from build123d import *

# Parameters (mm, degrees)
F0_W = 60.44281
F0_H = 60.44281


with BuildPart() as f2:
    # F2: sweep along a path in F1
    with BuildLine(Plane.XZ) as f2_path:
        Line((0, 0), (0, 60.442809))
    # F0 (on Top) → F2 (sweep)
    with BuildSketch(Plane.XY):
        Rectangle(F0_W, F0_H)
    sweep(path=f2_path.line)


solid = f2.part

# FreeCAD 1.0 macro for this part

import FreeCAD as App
import Part
import Sketcher

V = App.Vector


def add_polygon(sketch, points):
    """Adds a closed chain of lines whose ends are joined by coincident constraints."""
    first, n = sketch.GeometryCount, len(points)
    for a, b in zip(points, points[1:] + points[:1]):
        sketch.addGeometry(Part.LineSegment(App.Vector(*a, 0), App.Vector(*b, 0)), False)
    for i in range(n):
        sketch.addConstraint(Sketcher.Constraint("Coincident", first + i, 2, first + (i + 1) % n, 1))

doc = App.newDocument("Part")
body = doc.addObject("PartDesign::Body", "Body")

sketch1 = body.newObject("Sketcher::SketchObject", "Sketch")
sketch1.AttachmentSupport = (doc.getObject("XY_Plane"), [""])
sketch1.MapMode = "FlatFace"
add_polygon(sketch1, [(-30, 30), (-30, -30), (30, -30), (30, 30)])
sketch1.addConstraint([
    Sketcher.Constraint("Vertical", 0),
    Sketcher.Constraint("Horizontal", 1),
    Sketcher.Constraint("Vertical", 2),
    Sketcher.Constraint("Horizontal", 3),
    Sketcher.Constraint("Symmetric", 0, 2, 2, 2, -1, 1),
    Sketcher.Constraint("Equal", 3, 0),
    Sketcher.Constraint("DistanceX", 1, 1, 1, 2, 60.44281),
])

sketch2 = body.newObject("Sketcher::SketchObject", "Sketch001")
sketch2.AttachmentSupport = (doc.getObject("XZ_Plane"), [""])
sketch2.MapMode = "FlatFace"
sketch2.addGeometry(Part.LineSegment(V(0, 0, 0), V(0, 60, 0)), False)
sketch2.addConstraint([
    Sketcher.Constraint("Vertical", 0),
    Sketcher.Constraint("Coincident", 0, 1, -1, 1),
    Sketcher.Constraint("DistanceY", 0, 1, 0, 2, 60.442809),
])
doc.recompute()

additivepipe = body.newObject("PartDesign::AdditivePipe", "AdditivePipe")
additivepipe.Profile = sketch1
additivepipe.Spine = (sketch2, ["Edge1"])

doc.recompute()
